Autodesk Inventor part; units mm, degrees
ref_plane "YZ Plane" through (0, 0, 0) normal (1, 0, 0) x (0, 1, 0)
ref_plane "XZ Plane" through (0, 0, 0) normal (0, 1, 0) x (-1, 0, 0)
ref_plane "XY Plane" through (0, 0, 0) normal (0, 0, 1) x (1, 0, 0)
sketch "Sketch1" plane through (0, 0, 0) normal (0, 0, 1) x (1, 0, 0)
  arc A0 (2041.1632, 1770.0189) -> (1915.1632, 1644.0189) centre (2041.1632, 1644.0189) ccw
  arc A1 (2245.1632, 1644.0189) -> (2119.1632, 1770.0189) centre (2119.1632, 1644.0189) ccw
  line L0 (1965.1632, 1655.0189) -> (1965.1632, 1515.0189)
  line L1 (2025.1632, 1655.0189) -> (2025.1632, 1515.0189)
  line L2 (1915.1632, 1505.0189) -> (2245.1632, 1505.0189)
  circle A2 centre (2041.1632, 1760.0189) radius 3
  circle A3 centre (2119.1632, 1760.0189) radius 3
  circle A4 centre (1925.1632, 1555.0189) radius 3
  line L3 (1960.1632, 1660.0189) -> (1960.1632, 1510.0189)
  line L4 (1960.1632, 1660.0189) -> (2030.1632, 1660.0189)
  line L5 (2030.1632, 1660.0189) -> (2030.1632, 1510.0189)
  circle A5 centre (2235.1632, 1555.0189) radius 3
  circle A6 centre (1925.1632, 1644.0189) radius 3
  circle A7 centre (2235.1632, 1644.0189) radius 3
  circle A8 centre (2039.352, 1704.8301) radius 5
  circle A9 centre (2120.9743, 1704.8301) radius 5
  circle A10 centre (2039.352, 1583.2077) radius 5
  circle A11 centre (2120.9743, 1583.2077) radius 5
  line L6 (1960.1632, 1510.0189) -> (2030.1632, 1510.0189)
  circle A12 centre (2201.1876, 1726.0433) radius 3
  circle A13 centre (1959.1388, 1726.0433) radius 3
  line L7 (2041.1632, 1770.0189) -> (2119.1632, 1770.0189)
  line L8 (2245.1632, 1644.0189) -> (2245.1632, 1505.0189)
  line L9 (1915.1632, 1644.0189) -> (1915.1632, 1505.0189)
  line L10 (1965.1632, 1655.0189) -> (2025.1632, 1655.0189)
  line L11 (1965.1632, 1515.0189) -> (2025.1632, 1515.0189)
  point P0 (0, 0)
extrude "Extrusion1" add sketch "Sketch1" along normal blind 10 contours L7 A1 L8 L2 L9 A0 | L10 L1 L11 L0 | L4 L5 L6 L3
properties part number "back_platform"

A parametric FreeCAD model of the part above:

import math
import FreeCAD as App
import Part
import Sketcher
Q = App.Units.Quantity

doc = App.newDocument("Part")
body = doc.addObject("PartDesign::Body", "Body")

# Sketch on XY plane
sketch1 = doc.addObject("Sketcher::SketchObject", "Sketch")
body.addObject(sketch1)
sketch1.AttachmentSupport = (doc.XY_Plane, [""])
sketch1.MapMode = "FlatFace"
sketch1.addGeometry(Part.LineSegment(App.Vector(2119.2, 1770, 0), App.Vector(2041.2, 1770, 0)), False)
sketch1.addGeometry(Part.ArcOfCircle(Part.Circle(App.Vector(2041.2, 1644, 0), App.Vector(0, 0, 1), 126), math.radians(90), math.radians(180)), False)
sketch1.addGeometry(Part.LineSegment(App.Vector(1915.2, 1644, 0), App.Vector(1915.2, 1505, 0)), False)
sketch1.addGeometry(Part.LineSegment(App.Vector(1915.2, 1505, 0), App.Vector(2245.2, 1505, 0)), False)
sketch1.addGeometry(Part.LineSegment(App.Vector(2245.2, 1505, 0), App.Vector(2245.2, 1644, 0)), False)
sketch1.addGeometry(Part.ArcOfCircle(Part.Circle(App.Vector(2119.2, 1644, 0), App.Vector(0, 0, 1), 126), math.radians(0), math.radians(90)), False)
sketch1.addGeometry(Part.Circle(App.Vector(1925.2, 1555, 0), App.Vector(0, 0, 1), 3), False)
sketch1.addGeometry(Part.Circle(App.Vector(2039.4, 1583.2, 0), App.Vector(0, 0, 1), 5), False)
sketch1.addGeometry(Part.Circle(App.Vector(2235.2, 1555, 0), App.Vector(0, 0, 1), 3), False)
sketch1.addGeometry(Part.Circle(App.Vector(2121, 1583.2, 0), App.Vector(0, 0, 1), 5), False)
sketch1.addGeometry(Part.Circle(App.Vector(1925.2, 1644, 0), App.Vector(0, 0, 1), 3), False)
sketch1.addGeometry(Part.Circle(App.Vector(1959.1, 1726, 0), App.Vector(0, 0, 1), 3), False)
sketch1.addGeometry(Part.Circle(App.Vector(2039.4, 1704.8, 0), App.Vector(0, 0, 1), 5), False)
sketch1.addGeometry(Part.Circle(App.Vector(2041.2, 1760, 0), App.Vector(0, 0, 1), 3), False)
sketch1.addGeometry(Part.Circle(App.Vector(2235.2, 1644, 0), App.Vector(0, 0, 1), 3), False)
sketch1.addGeometry(Part.Circle(App.Vector(2121, 1704.8, 0), App.Vector(0, 0, 1), 5), False)
sketch1.addGeometry(Part.Circle(App.Vector(2119.2, 1760, 0), App.Vector(0, 0, 1), 3), False)
sketch1.addGeometry(Part.Circle(App.Vector(2201.2, 1726, 0), App.Vector(0, 0, 1), 3), False)
sketch1.addConstraint(Sketcher.Constraint("Tangent", 0, 2, 1, 1))
sketch1.addConstraint(Sketcher.Constraint("Tangent", 1, 2, 2, 1))
sketch1.addConstraint(Sketcher.Constraint("Coincident", 2, 2, 3, 1))
sketch1.addConstraint(Sketcher.Constraint("Coincident", 3, 2, 4, 1))
sketch1.addConstraint(Sketcher.Constraint("Tangent", 4, 2, 5, 1))
sketch1.addConstraint(Sketcher.Constraint("Tangent", 5, 2, 0, 1))
sketch1.addConstraint(Sketcher.Constraint("Horizontal", 0))
sketch1.addConstraint(Sketcher.Constraint("Vertical", 2))
sketch1.addConstraint(Sketcher.Constraint("Horizontal", 3))
sketch1.addConstraint(Sketcher.Constraint("Vertical", 4))
sketch1.addConstraint(Sketcher.Constraint("Equal", 1, 5))
sketch1.addConstraint(Sketcher.Constraint("Equal", 6, 8))
sketch1.addConstraint(Sketcher.Constraint("Equal", 7, 9))
sketch1.addConstraint(Sketcher.Constraint("Equal", 8, 10))
sketch1.addConstraint(Sketcher.Constraint("Equal", 10, 11))
sketch1.addConstraint(Sketcher.Constraint("Equal", 9, 12))
sketch1.addConstraint(Sketcher.Constraint("Equal", 11, 13))
sketch1.addConstraint(Sketcher.Constraint("Equal", 13, 14))
sketch1.addConstraint(Sketcher.Constraint("Equal", 12, 15))
sketch1.addConstraint(Sketcher.Constraint("Equal", 14, 16))
sketch1.addConstraint(Sketcher.Constraint("Equal", 16, 17))
sketch1.addConstraint(Sketcher.Constraint("Horizontal", 6, 3, 8, 3))
sketch1.addConstraint(Sketcher.Constraint("Horizontal", 7, 3, 9, 3))
sketch1.addConstraint(Sketcher.Constraint("Horizontal", 5, 3, 10, 3))
sketch1.addConstraint(Sketcher.Constraint("Horizontal", 10, 3, 14, 3))
sketch1.addConstraint(Sketcher.Constraint("Horizontal", 12, 3, 15, 3))
sketch1.addConstraint(Sketcher.Constraint("Horizontal", 13, 3, 16, 3))
sketch1.addConstraint(Sketcher.Constraint("Horizontal", 11, 3, 17, 3))
sketch1.addConstraint(Sketcher.Constraint("Vertical", 6, 3, 10, 3))
sketch1.addConstraint(Sketcher.Constraint("Vertical", 7, 3, 12, 3))
sketch1.addConstraint(Sketcher.Constraint("Vertical", 1, 3, 13, 3))
sketch1.addConstraint(Sketcher.Constraint("Vertical", 8, 3, 14, 3))
sketch1.addConstraint(Sketcher.Constraint("Vertical", 9, 3, 15, 3))
sketch1.addConstraint(Sketcher.Constraint("Vertical", 5, 3, 16, 3))
sketch1.addConstraint(Sketcher.Constraint("Diameter", 6, Q("6 mm")))
sketch1.addConstraint(Sketcher.Constraint("Diameter", 7, Q("10 mm")))
sketch1.addConstraint(Sketcher.Constraint("Radius", 1, Q("126 mm")))
sketch1.addConstraint(Sketcher.Constraint("DistanceX", 0, 2, 0, 1, Q("78 mm")))
sketch1.addConstraint(Sketcher.Constraint("DistanceY", 2, 2, 2, 1, Q("139 mm")))
sketch1.addConstraint(Sketcher.Constraint("DistanceX", 6, 3, 1, 3, Q("116 mm")))
sketch1.addConstraint(Sketcher.Constraint("DistanceY", 6, 3, 1, 3, Q("89 mm")))
sketch1.addConstraint(Sketcher.Constraint("DistanceX", 5, 3, 8, 3, Q("116 mm")))
sketch1.addConstraint(Sketcher.Constraint("DistanceY", 1, 3, 13, 3, Q("116 mm")))
sketch1.addConstraint(Sketcher.Constraint("DistanceY", -1, 1, 12, 3, Q("1704.83 mm")))
sketch1.addConstraint(Sketcher.Constraint("DistanceY", -1, 1, 1, 3, Q("1644.019 mm")))
sketch1.addConstraint(Sketcher.Constraint("DistanceX", -1, 1, 7, 3, Q("2039.352 mm")))
sketch1.addConstraint(Sketcher.Constraint("DistanceX", 5, 3, 9, 3, Q("1.811 mm")))
sketch1.addConstraint(Sketcher.Constraint("DistanceX", -1, 1, 1, 3, Q("2041.1632 mm")))
sketch1.addConstraint(Sketcher.Constraint("DistanceY", -1, 1, 7, 3, Q("1583.2077 mm")))
sketch1.addConstraint(Sketcher.Constraint("DistanceX", -1, 1, 11, 3, Q("1959.1388 mm")))
sketch1.addConstraint(Sketcher.Constraint("DistanceY", -1, 1, 11, 3, Q("1726.0433 mm")))
sketch1.addConstraint(Sketcher.Constraint("DistanceX", -1, 1, 17, 3, Q("2201.1876 mm")))
pad1 = doc.addObject("PartDesign::Pad", "Pad")
body.addObject(pad1)
pad1.Profile = sketch1
pad1.Length = 10

doc.recompute()
